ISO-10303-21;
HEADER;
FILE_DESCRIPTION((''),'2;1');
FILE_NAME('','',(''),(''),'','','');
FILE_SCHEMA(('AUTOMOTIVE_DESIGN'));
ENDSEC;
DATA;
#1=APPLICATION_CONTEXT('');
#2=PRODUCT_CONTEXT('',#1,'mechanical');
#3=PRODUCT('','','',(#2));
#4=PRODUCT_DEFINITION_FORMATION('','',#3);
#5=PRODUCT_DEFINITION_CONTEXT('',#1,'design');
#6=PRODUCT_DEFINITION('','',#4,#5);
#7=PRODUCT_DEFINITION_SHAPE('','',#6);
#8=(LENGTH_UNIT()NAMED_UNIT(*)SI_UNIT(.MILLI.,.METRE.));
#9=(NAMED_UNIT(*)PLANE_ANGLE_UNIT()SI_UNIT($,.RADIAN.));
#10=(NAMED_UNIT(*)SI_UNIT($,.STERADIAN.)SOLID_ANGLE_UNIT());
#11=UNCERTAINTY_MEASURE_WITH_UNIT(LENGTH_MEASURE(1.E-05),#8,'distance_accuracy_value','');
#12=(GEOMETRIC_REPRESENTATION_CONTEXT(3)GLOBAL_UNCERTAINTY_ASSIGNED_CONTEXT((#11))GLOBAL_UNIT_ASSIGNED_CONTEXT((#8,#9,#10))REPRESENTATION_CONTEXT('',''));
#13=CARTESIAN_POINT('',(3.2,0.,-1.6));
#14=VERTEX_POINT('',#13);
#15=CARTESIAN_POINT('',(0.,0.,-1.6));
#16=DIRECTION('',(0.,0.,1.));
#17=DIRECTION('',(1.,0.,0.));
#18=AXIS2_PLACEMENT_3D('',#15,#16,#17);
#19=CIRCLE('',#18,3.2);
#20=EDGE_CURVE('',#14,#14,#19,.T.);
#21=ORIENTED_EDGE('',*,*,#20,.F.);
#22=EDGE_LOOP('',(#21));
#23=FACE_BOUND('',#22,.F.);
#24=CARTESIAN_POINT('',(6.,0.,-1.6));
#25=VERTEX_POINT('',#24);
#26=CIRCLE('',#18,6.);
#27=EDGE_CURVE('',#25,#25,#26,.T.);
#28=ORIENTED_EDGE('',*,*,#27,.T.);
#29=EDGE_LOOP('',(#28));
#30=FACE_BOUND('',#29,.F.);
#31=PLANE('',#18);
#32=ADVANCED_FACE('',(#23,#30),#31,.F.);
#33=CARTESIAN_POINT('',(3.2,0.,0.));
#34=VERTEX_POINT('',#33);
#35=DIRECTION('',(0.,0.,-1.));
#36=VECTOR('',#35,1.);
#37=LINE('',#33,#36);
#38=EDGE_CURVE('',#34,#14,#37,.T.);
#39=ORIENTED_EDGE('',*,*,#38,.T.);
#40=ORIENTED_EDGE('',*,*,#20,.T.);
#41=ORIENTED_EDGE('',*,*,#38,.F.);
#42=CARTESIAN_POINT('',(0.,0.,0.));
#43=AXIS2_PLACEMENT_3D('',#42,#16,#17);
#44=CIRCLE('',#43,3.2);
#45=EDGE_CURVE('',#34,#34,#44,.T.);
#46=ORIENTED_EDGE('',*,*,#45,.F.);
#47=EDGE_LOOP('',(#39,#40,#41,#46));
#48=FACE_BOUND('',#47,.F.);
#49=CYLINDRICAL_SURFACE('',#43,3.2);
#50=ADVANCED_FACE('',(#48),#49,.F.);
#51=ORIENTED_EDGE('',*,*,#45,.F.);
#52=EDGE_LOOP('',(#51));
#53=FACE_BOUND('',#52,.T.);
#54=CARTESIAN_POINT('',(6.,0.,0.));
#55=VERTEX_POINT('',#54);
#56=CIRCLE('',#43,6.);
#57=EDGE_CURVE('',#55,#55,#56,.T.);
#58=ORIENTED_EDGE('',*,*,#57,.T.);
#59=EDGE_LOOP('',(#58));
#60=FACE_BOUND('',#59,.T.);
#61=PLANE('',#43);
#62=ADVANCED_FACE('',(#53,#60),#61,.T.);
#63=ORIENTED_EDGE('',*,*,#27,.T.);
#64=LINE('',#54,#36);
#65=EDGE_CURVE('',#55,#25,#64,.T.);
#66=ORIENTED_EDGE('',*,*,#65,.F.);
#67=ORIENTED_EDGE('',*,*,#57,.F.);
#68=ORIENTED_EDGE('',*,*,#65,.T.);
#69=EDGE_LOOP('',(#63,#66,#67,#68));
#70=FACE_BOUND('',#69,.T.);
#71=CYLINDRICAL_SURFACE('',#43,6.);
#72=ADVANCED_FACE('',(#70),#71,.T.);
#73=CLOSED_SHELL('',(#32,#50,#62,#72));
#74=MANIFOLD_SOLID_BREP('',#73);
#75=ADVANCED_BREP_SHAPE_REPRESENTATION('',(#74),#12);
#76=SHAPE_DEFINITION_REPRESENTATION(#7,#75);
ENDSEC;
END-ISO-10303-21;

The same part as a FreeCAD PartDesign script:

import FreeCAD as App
import Part
import Sketcher
from FreeCAD import Vector

doc = App.newDocument("Part")
params = doc.addObject("Spreadsheet::Sheet", "Params")
for row, (alias, value) in enumerate([
    ("sketch1_diameter", "12 mm"),
    ("sketch1_diameter2", "6.4 mm"),
    ("pad1_length", "1.6 mm"),
], start=1):
    params.set(f"A{row}", alias)
    params.set(f"B{row}", "=" + value)
    params.setAlias(f"B{row}", alias)

body = doc.addObject("PartDesign::Body", "Body")

# Sketch on XY plane
sketch1 = body.newObject("Sketcher::SketchObject", "Sketch")
sketch1.AttachmentSupport = (doc.getObject("XY_Plane"), [""])
sketch1.MapMode = "FlatFace"
sketch1.addGeometry([
    Part.Circle(Vector(0, 0, 0), Vector(0, 0, 1), 6),
    Part.Circle(Vector(0, 0, 0), Vector(0, 0, 1), 3.2),
], False)
sketch1.addConstraint([
    Sketcher.Constraint("Coincident", 0, 3, -1, 1),
    Sketcher.Constraint("Coincident", 1, 3, -1, 1),
    Sketcher.Constraint("Diameter", 0, 12.0),
    Sketcher.Constraint("Diameter", 1, 6.4),
])
sketch1.setExpression("Constraints[2]", "Params.sketch1_diameter")
sketch1.setExpression("Constraints[3]", "Params.sketch1_diameter2")
pad1 = body.newObject("PartDesign::Pad", "Pad")
pad1.Profile = sketch1
pad1.setExpression("Length", "Params.pad1_length")
pad1.Reversed = True

doc.recompute()
